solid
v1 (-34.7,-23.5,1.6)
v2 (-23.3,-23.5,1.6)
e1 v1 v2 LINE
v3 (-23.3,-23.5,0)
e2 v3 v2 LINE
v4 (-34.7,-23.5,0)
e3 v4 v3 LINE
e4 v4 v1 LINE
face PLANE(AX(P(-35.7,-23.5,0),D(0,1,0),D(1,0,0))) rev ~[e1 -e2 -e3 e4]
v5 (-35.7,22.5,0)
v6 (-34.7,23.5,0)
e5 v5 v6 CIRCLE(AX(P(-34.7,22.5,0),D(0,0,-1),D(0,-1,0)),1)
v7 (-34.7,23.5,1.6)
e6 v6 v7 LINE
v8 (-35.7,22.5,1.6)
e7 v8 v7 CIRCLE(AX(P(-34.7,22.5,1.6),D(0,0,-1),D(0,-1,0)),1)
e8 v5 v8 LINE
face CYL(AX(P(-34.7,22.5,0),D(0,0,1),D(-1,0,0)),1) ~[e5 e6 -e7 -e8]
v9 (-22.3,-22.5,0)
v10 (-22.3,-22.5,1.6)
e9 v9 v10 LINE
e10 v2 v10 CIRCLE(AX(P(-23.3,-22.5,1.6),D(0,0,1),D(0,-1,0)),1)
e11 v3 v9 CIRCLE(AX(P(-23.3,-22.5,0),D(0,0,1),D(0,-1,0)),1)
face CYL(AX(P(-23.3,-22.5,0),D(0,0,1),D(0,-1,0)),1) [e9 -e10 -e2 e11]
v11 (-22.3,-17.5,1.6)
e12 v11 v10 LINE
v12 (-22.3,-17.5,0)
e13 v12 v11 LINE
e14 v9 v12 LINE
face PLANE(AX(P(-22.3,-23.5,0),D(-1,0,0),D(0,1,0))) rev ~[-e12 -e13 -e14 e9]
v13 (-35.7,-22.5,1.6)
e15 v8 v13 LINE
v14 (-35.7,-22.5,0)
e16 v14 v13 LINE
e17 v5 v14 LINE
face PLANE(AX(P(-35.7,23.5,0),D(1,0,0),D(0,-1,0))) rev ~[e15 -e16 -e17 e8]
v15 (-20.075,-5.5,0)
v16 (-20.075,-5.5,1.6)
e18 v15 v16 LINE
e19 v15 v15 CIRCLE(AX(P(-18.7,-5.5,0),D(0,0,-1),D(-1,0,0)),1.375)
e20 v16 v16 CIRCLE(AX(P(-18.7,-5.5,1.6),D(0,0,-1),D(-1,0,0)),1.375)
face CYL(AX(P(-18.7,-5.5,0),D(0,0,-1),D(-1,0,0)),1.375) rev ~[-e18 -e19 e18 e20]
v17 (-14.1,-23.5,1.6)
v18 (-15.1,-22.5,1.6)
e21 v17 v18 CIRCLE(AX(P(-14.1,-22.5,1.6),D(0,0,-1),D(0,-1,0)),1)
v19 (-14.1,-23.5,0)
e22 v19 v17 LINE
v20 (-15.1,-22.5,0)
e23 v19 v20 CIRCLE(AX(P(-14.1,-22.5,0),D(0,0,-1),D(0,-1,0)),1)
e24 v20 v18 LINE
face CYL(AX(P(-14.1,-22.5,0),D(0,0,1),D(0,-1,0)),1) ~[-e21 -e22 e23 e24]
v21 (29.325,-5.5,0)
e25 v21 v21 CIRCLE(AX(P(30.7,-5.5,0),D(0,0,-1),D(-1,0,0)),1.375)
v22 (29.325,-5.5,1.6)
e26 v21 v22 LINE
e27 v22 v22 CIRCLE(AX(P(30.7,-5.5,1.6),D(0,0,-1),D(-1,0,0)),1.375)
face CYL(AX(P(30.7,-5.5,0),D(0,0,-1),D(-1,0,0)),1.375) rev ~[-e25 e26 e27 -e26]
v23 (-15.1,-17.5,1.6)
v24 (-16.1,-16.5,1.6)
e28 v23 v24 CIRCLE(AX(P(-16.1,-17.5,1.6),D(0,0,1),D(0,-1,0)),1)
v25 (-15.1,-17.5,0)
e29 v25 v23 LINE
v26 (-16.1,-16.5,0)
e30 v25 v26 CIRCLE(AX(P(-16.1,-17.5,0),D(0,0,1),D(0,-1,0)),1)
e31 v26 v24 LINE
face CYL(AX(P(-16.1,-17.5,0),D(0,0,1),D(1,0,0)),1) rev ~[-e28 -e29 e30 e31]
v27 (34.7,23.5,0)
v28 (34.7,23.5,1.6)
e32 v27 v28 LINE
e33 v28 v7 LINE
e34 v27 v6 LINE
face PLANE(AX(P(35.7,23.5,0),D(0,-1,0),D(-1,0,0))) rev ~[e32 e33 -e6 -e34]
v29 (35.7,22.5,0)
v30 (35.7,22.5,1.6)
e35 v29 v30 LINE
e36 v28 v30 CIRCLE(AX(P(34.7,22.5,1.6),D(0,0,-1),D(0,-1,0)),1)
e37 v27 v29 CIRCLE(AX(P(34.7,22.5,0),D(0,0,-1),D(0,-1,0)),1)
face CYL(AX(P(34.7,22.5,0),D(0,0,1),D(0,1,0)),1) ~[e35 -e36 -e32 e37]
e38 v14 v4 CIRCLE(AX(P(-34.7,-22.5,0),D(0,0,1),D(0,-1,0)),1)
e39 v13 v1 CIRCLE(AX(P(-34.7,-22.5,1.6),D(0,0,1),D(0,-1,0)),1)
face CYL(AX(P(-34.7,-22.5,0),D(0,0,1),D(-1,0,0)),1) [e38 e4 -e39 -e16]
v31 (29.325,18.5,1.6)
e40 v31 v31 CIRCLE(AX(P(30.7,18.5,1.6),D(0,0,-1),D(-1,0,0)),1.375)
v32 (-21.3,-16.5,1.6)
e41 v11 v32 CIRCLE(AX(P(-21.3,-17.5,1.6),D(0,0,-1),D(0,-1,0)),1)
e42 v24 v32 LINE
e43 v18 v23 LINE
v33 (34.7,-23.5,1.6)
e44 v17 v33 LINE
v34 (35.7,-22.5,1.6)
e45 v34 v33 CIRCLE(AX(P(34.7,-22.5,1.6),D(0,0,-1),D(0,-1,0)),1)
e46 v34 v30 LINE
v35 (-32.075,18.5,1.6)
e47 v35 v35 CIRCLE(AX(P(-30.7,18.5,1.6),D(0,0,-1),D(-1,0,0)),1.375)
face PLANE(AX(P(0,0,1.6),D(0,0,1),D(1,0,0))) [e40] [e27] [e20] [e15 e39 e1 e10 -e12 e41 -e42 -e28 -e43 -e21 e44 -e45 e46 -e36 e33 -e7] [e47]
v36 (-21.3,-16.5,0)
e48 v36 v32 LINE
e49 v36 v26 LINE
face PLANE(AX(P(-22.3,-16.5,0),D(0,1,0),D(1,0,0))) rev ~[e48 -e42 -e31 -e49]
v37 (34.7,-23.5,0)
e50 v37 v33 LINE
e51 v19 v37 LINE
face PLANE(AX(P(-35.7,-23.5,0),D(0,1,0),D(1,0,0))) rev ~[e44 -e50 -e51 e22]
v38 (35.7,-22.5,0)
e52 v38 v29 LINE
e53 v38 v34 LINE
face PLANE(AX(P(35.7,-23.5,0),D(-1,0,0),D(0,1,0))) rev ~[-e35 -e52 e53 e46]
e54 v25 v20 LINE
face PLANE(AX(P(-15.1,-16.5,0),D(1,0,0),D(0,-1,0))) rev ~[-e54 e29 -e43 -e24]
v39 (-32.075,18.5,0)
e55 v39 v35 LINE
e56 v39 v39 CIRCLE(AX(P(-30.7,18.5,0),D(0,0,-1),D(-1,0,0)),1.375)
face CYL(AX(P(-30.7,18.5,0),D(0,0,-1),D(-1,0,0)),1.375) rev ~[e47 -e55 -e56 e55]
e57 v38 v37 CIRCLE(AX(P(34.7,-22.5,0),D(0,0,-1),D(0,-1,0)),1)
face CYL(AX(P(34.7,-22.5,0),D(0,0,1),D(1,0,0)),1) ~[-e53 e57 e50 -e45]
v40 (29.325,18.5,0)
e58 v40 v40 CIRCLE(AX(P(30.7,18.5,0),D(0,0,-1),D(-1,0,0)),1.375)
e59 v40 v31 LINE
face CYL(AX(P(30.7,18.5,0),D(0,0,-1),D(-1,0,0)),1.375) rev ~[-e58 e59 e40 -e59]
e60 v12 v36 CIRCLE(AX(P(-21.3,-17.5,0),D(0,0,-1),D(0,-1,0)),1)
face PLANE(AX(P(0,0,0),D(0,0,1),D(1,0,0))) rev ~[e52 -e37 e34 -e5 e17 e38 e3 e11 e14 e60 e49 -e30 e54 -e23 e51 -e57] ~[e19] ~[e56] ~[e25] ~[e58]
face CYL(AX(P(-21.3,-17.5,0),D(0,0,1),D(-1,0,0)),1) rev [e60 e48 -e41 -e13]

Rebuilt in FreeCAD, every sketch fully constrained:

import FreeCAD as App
import Part
import Sketcher
Q = App.Units.Quantity


def edges_at(feature, points):
    """Names of the edges that pass closest to the given points."""
    edges = feature.Shape.Edges
    near = lambda p: min(range(len(edges)), key=lambda i: edges[i].distToShape(Part.Vertex(*p))[0])
    return sorted({f"Edge{near(p) + 1}" for p in points})


def add_polygon(sketch, points):
    """Adds a closed chain of lines whose ends are joined by coincident constraints."""
    first, n = sketch.GeometryCount, len(points)
    for a, b in zip(points, points[1:] + points[:1]):
        sketch.addGeometry(Part.LineSegment(App.Vector(*a, 0), App.Vector(*b, 0)), False)
    for i in range(n):
        sketch.addConstraint(Sketcher.Constraint("Coincident", first + i, 2, first + (i + 1) % n, 1))

doc = App.newDocument("Part")
body = doc.addObject("PartDesign::Body", "Body")

sketch1 = body.newObject("Sketcher::SketchObject", "Sketch")
sketch1.AttachmentSupport = (doc.getObject("XY_Plane"), [""])
sketch1.MapMode = "FlatFace"
add_polygon(sketch1, [(-36, 24), (-36, -24), (36, -24), (36, 24)])
sketch1.addConstraint(Sketcher.Constraint("Vertical", 0))
sketch1.addConstraint(Sketcher.Constraint("Horizontal", 1))
sketch1.addConstraint(Sketcher.Constraint("Vertical", 2))
sketch1.addConstraint(Sketcher.Constraint("Horizontal", 3))
sketch1.addConstraint(Sketcher.Constraint("Symmetric", 0, 2, 2, 2, -1, 1))
sketch1.addConstraint(Sketcher.Constraint("DistanceY", 0, 2, 0, 1, Q("47 mm")))
sketch1.addConstraint(Sketcher.Constraint("DistanceX", 1, 1, 1, 2, Q("71.4 mm")))
pad1 = body.newObject("PartDesign::Pad", "Pad")
pad1.Profile = sketch1
pad1.Length = 1.6

sketch2 = body.newObject("Sketcher::SketchObject", "Sketch001")
sketch2.AttachmentSupport = (doc.getObject("XY_Plane"), [""])
sketch2.MapMode = "FlatFace"
add_polygon(sketch2, [(-15, -24), (-22, -24), (-22, -16), (-15, -16)])
sketch2.addConstraint(Sketcher.Constraint("Horizontal", 0))
sketch2.addConstraint(Sketcher.Constraint("Vertical", 1))
sketch2.addConstraint(Sketcher.Constraint("Horizontal", 2))
sketch2.addConstraint(Sketcher.Constraint("Vertical", 3))
sketch2.addConstraint(Sketcher.Constraint("DistanceY", 1, 1, 1, 2, Q("7 mm")))
sketch2.addConstraint(Sketcher.Constraint("DistanceX", 0, 2, 0, 1, Q("7.2 mm")))
sketch2.addConstraint(Sketcher.Constraint("DistanceX", 0, 2, -1, 1, Q("22.3 mm")))
sketch2.addConstraint(Sketcher.Constraint("DistanceY", 0, 2, -1, 1, Q("23.5 mm")))
pocket1 = body.newObject("PartDesign::Pocket", "Pocket")
pocket1.Profile = sketch2
pocket1.Type = "ThroughAll"
pocket1.Reversed = True

sketch3 = body.newObject("Sketcher::SketchObject", "Sketch002")
sketch3.AttachmentSupport = (doc.getObject("XY_Plane"), [""])
sketch3.MapMode = "FlatFace"
sketch3.addGeometry(Part.Circle(App.Vector(-30.7, 18.5, 0), App.Vector(0, 0, 1), 1.4), False)
sketch3.addGeometry(Part.Circle(App.Vector(30.7, -5.5, 0), App.Vector(0, 0, 1), 1.4), False)
sketch3.addGeometry(Part.Circle(App.Vector(30.7, 18.5, 0), App.Vector(0, 0, 1), 1.4), False)
sketch3.addGeometry(Part.Circle(App.Vector(-18.7, -5.5, 0), App.Vector(0, 0, 1), 1.4), False)
sketch3.addConstraint(Sketcher.Constraint("Equal", 0, 1))
sketch3.addConstraint(Sketcher.Constraint("Equal", 1, 2))
sketch3.addConstraint(Sketcher.Constraint("Equal", 2, 3))
sketch3.addConstraint(Sketcher.Constraint("Symmetric", 0, 3, 2, 3, -2))
sketch3.addConstraint(Sketcher.Constraint("Horizontal", 1, 3, 3, 3))
sketch3.addConstraint(Sketcher.Constraint("Vertical", 1, 3, 2, 3))
sketch3.addConstraint(Sketcher.Constraint("Diameter", 0, Q("2.75 mm")))
sketch3.addConstraint(Sketcher.Constraint("DistanceY", 1, 3, 0, 3, Q("24 mm")))
sketch3.addConstraint(Sketcher.Constraint("DistanceX", 0, 3, 3, 3, Q("12 mm")))
sketch3.addConstraint(Sketcher.Constraint("DistanceX", 0, 3, -1, 1, Q("30.7 mm")))
sketch3.addConstraint(Sketcher.Constraint("DistanceY", -1, 1, 0, 3, Q("18.5 mm")))
pocket2 = body.newObject("PartDesign::Pocket", "Pocket001")
pocket2.Profile = sketch3
pocket2.Type = "ThroughAll"
pocket2.Reversed = True
doc.recompute()

fillet = body.newObject("PartDesign::Fillet", "Fillet")
fillet.Base = (pocket2, edges_at(pocket2, [
    (35.7, 23.5, 0.8),
    (-35.7, 23.5, 0.8),
    (-35.7, -23.5, 0.8),
    (-15.1, -23.5, 0.8),
    (-22.3, -23.5, 0.8),
    (-15.1, -16.5, 0.8),
    (-22.3, -16.5, 0.8),
    (35.7, -23.5, 0.8),
]))
fillet.Radius = 1

doc.recompute()
